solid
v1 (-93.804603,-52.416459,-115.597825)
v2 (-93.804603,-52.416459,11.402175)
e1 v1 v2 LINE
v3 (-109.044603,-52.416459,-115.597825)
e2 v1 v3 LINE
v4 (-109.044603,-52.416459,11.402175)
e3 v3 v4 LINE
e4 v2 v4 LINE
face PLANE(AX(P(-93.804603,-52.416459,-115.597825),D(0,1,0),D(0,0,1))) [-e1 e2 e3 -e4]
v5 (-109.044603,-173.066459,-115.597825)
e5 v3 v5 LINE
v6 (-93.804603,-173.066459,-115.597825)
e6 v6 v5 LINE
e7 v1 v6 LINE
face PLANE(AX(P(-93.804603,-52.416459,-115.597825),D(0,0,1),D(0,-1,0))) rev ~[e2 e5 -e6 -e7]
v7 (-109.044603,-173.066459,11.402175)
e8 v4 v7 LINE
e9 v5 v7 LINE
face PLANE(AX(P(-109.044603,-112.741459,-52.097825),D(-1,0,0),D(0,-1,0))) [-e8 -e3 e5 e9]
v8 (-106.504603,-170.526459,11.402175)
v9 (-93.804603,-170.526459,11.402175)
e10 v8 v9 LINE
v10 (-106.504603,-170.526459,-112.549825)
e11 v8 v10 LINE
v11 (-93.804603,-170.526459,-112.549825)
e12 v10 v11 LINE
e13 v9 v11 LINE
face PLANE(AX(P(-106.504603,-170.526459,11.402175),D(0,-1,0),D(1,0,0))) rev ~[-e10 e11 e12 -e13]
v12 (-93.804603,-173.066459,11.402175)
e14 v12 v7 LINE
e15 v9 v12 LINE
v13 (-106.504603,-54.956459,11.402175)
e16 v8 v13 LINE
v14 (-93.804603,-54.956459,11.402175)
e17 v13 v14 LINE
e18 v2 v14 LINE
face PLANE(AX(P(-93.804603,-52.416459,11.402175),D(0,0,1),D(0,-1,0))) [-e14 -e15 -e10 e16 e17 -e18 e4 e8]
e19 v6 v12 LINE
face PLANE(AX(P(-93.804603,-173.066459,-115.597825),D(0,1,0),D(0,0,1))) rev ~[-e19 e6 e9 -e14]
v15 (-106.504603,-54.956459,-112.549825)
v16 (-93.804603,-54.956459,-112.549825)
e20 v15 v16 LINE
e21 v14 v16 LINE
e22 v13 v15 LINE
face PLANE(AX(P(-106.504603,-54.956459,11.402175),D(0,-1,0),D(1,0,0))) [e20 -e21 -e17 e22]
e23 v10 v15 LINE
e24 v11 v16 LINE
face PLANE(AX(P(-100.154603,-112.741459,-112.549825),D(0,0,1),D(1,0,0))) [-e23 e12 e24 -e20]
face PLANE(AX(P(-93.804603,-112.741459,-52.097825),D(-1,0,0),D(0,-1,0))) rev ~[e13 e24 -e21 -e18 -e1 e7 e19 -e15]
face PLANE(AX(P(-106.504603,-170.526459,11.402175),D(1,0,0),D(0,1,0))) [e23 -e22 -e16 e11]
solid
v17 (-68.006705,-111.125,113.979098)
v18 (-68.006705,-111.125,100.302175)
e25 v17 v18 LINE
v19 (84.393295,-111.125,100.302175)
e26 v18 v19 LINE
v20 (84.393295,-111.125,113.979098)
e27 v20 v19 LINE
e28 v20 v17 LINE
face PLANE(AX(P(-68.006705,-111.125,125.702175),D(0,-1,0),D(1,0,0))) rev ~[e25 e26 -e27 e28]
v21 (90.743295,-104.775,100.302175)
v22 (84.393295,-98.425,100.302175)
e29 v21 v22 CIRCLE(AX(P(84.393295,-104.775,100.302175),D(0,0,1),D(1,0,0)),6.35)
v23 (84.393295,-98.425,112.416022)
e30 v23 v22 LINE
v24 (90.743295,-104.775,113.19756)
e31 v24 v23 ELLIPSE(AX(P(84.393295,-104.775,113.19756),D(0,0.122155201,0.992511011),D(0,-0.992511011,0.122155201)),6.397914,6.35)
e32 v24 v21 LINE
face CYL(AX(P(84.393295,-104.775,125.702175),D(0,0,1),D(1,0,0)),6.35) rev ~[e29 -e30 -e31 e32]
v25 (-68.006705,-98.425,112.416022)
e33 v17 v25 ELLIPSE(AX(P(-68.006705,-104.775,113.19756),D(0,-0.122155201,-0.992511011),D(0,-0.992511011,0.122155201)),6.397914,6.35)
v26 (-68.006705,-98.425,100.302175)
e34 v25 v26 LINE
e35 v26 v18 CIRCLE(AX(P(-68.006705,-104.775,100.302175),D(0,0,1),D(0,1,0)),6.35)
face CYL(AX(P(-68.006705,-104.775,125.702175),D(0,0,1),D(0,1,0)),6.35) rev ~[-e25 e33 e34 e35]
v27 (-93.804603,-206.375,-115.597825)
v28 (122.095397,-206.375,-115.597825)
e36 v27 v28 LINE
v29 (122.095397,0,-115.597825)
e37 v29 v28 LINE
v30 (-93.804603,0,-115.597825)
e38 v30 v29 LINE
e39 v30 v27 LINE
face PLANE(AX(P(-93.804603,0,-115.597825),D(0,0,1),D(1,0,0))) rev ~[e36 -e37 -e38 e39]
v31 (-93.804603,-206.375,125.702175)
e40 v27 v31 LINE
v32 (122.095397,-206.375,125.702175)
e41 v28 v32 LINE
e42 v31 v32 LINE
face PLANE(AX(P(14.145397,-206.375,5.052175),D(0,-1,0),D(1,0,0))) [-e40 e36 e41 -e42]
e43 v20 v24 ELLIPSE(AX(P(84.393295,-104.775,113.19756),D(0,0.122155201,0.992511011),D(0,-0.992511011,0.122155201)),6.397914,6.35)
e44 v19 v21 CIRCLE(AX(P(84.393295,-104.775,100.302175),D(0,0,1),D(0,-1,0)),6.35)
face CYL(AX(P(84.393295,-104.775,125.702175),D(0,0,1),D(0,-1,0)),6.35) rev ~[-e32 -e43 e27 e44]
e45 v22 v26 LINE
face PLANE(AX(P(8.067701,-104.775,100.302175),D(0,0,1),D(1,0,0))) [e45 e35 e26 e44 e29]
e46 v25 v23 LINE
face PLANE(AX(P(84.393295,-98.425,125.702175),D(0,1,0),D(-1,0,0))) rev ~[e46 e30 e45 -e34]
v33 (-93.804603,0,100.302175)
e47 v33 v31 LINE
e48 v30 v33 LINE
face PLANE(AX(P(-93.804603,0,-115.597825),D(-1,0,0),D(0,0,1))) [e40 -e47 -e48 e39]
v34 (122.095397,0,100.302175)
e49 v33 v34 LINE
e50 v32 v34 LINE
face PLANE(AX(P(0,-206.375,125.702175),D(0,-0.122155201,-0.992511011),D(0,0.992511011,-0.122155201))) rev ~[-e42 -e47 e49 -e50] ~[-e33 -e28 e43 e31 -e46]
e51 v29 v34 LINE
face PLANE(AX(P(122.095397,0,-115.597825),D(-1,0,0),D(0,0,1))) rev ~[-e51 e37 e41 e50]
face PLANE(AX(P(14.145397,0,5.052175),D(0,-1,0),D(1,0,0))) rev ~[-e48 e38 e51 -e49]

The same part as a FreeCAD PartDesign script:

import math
import FreeCAD as App
import Part
import Sketcher
Q = App.Units.Quantity


def add_polygon(sketch, points):
    """Adds a closed chain of lines whose ends are joined by coincident constraints."""
    first, n = sketch.GeometryCount, len(points)
    for a, b in zip(points, points[1:] + points[:1]):
        sketch.addGeometry(Part.LineSegment(App.Vector(*a, 0), App.Vector(*b, 0)), False)
    for i in range(n):
        sketch.addConstraint(Sketcher.Constraint("Coincident", first + i, 2, first + (i + 1) % n, 1))

doc = App.newDocument("Part")
body = doc.addObject("PartDesign::Body", "Body")

sketch1 = doc.addObject("Sketcher::SketchObject", "Sketch")
body.addObject(sketch1)
sketch1.AttachmentSupport = (doc.XZ_Plane, [""])
sketch1.MapMode = "FlatFace"
add_polygon(sketch1, [(-93.804603, 125.702175), (-93.804603, -115.597825), (122.095397, -115.597825), (122.095397, 125.702175)])
sketch1.addConstraint([
    Sketcher.Constraint("Vertical", 0),
    Sketcher.Constraint("Horizontal", 1),
    Sketcher.Constraint("Vertical", 2),
    Sketcher.Constraint("Horizontal", 3),
    Sketcher.Constraint("DistanceX", 1, 1, 1, 2, Q("8.5 in")),
    Sketcher.Constraint("DistanceY", 0, 2, 0, 1, Q("9.5 in")),
    Sketcher.Constraint("DistanceX", 0, 2, -1, 1, 93.804603),
    Sketcher.Constraint("DistanceY", 0, 2, -1, 1, 115.597825),
])
pad1 = doc.addObject("PartDesign::Pad", "Pad")
body.addObject(pad1)
pad1.Profile = sketch1
pad1.Length = Q("8.125 in")

sketch2 = doc.addObject("Sketcher::SketchObject", "Sketch001")
body.addObject(sketch2)
sketch2.AttachmentSupport = (doc.XY_Plane, [""])
sketch2.MapMode = "FlatFace"
sketch2.AttachmentOffset = App.Placement(App.Vector(0, 0, 125.702175), App.Rotation())
sketch2.addGeometry([
    Part.LineSegment(App.Vector(84.393295, -98.425, 0), App.Vector(-68.006705, -98.425, 0)),
    Part.ArcOfCircle(Part.Circle(App.Vector(-68.006705, -104.775, 0), App.Vector(0, 0, 1), 6.35), math.radians(90), math.radians(270)),
    Part.LineSegment(App.Vector(-68.006705, -111.125, 0), App.Vector(84.393295, -111.125, 0)),
    Part.ArcOfCircle(Part.Circle(App.Vector(84.393295, -104.775, 0), App.Vector(0, 0, 1), 6.35), math.radians(-90), math.radians(0)),
    Part.ArcOfCircle(Part.Circle(App.Vector(84.393295, -104.775, 0), App.Vector(0, 0, 1), 6.35), math.radians(0), math.radians(90)),
], False)
sketch2.addConstraint([
    Sketcher.Constraint("Tangent", 0, 2, 1, 1),
    Sketcher.Constraint("Tangent", 1, 2, 2, 1),
    Sketcher.Constraint("Tangent", 2, 2, 3, 1),
    Sketcher.Constraint("Tangent", 3, 2, 4, 1),
    Sketcher.Constraint("Tangent", 4, 2, 0, 1),
    Sketcher.Constraint("Horizontal", 0),
    Sketcher.Constraint("Horizontal", 2),
    Sketcher.Constraint("Equal", 1, 3),
    Sketcher.Constraint("Horizontal", 4, 3, 3, 2),
    Sketcher.Constraint("DistanceX", 0, 2, 0, 1, Q("6 in")),
    Sketcher.Constraint("Radius", 1, Q("0.25 in")),
    Sketcher.Constraint("DistanceY", 1, 3, -1, 1, Q("4.125 in")),
    Sketcher.Constraint("DistanceX", 1, 3, -1, 1, 68.006705),
])
pocket1 = doc.addObject("PartDesign::Pocket", "Pocket")
body.addObject(pocket1)
pocket1.Profile = sketch2
pocket1.Length = Q("1 in")

sketch3 = doc.addObject("Sketcher::SketchObject", "Sketch002")
body.addObject(sketch3)
sketch3.AttachmentSupport = (doc.YZ_Plane, [""])
sketch3.MapMode = "FlatFace"
add_polygon(sketch3, [(-206.375, 125.702175), (0, 100.302175), (13.319787, 98.044898), (13.319787, 125.702175)])
sketch3.addConstraint([
    Sketcher.Constraint("Vertical", 2),
    Sketcher.Constraint("Horizontal", 3),
    Sketcher.Constraint("PointOnObject", 0, 2, -2),
    Sketcher.Constraint("DistanceY", 0, 2, 2, 2, Q("1 in")),
    Sketcher.Constraint("DistanceX", 3, 2, -1, 1, Q("8.125 in")),
    Sketcher.Constraint("Distance", 1, 13.509702),
    Sketcher.Constraint("DistanceY", -1, 1, 1, 2, 98.044898),
    Sketcher.Constraint("DistanceX", 3, 2, 3, 1, 219.694787),
])
pocket2 = doc.addObject("PartDesign::Pocket", "Pocket001")
body.addObject(pocket2)
pocket2.Profile = sketch3
pocket2.Type = "ThroughAll"
pocket2.Midplane = True
body2 = doc.addObject("PartDesign::Body", "Body001")

sketch4 = doc.addObject("Sketcher::SketchObject", "Sketch003")
body2.addObject(sketch4)
sketch4.AttachmentSupport = (doc.getObject("YZ_Plane001"), [""])
sketch4.MapMode = "FlatFace"
sketch4.AttachmentOffset = App.Placement(App.Vector(0, 0, -93.804603), App.Rotation())
add_polygon(sketch4, [(-52.416459, 11.402175), (-52.416459, -115.597825), (-173.066459, -115.597825), (-173.066459, 11.402175)])
sketch4.addConstraint([
    Sketcher.Constraint("Vertical", 0),
    Sketcher.Constraint("Horizontal", 1),
    Sketcher.Constraint("Vertical", 2),
    Sketcher.Constraint("Horizontal", 3),
    Sketcher.Constraint("DistanceY", 0, 2, 0, 1, Q("5 in")),
    Sketcher.Constraint("DistanceX", 1, 2, 1, 1, Q("4.75 in")),
    Sketcher.Constraint("DistanceX", 0, 2, -1, 1, 52.416459),
    Sketcher.Constraint("DistanceY", 0, 2, -1, 1, 115.597825),
])
pad2 = doc.addObject("PartDesign::Pad", "Pad001")
body2.addObject(pad2)
pad2.Profile = sketch4
pad2.Length = Q("0.6 in")
pad2.Reversed = True

sketch5 = doc.addObject("Sketcher::SketchObject", "Sketch004")
body2.addObject(sketch5)
sketch5.AttachmentSupport = (doc.getObject("XY_Plane001"), [""])
sketch5.MapMode = "FlatFace"
sketch5.AttachmentOffset = App.Placement(App.Vector(0, 0, 11.402175), App.Rotation())
add_polygon(sketch5, [(-106.504603, -54.956459), (-106.504603, -170.526459), (-93.804603, -170.526459), (-93.804603, -54.956459)])
sketch5.addConstraint([
    Sketcher.Constraint("Vertical", 0),
    Sketcher.Constraint("Horizontal", 1),
    Sketcher.Constraint("Vertical", 2),
    Sketcher.Constraint("Horizontal", 3),
    Sketcher.Constraint("DistanceX", 1, 1, 1, 2, Q("0.5 in")),
    Sketcher.Constraint("DistanceY", 0, 2, 0, 1, Q("4.55 in")),
    Sketcher.Constraint("DistanceY", 0, 2, -1, 1, 170.526459),
    Sketcher.Constraint("DistanceX", 0, 2, -1, 1, 106.504603),
])
pocket3 = doc.addObject("PartDesign::Pocket", "Pocket002")
body2.addObject(pocket3)
pocket3.Profile = sketch5
pocket3.Length = Q("4.88 in")

doc.recompute()
